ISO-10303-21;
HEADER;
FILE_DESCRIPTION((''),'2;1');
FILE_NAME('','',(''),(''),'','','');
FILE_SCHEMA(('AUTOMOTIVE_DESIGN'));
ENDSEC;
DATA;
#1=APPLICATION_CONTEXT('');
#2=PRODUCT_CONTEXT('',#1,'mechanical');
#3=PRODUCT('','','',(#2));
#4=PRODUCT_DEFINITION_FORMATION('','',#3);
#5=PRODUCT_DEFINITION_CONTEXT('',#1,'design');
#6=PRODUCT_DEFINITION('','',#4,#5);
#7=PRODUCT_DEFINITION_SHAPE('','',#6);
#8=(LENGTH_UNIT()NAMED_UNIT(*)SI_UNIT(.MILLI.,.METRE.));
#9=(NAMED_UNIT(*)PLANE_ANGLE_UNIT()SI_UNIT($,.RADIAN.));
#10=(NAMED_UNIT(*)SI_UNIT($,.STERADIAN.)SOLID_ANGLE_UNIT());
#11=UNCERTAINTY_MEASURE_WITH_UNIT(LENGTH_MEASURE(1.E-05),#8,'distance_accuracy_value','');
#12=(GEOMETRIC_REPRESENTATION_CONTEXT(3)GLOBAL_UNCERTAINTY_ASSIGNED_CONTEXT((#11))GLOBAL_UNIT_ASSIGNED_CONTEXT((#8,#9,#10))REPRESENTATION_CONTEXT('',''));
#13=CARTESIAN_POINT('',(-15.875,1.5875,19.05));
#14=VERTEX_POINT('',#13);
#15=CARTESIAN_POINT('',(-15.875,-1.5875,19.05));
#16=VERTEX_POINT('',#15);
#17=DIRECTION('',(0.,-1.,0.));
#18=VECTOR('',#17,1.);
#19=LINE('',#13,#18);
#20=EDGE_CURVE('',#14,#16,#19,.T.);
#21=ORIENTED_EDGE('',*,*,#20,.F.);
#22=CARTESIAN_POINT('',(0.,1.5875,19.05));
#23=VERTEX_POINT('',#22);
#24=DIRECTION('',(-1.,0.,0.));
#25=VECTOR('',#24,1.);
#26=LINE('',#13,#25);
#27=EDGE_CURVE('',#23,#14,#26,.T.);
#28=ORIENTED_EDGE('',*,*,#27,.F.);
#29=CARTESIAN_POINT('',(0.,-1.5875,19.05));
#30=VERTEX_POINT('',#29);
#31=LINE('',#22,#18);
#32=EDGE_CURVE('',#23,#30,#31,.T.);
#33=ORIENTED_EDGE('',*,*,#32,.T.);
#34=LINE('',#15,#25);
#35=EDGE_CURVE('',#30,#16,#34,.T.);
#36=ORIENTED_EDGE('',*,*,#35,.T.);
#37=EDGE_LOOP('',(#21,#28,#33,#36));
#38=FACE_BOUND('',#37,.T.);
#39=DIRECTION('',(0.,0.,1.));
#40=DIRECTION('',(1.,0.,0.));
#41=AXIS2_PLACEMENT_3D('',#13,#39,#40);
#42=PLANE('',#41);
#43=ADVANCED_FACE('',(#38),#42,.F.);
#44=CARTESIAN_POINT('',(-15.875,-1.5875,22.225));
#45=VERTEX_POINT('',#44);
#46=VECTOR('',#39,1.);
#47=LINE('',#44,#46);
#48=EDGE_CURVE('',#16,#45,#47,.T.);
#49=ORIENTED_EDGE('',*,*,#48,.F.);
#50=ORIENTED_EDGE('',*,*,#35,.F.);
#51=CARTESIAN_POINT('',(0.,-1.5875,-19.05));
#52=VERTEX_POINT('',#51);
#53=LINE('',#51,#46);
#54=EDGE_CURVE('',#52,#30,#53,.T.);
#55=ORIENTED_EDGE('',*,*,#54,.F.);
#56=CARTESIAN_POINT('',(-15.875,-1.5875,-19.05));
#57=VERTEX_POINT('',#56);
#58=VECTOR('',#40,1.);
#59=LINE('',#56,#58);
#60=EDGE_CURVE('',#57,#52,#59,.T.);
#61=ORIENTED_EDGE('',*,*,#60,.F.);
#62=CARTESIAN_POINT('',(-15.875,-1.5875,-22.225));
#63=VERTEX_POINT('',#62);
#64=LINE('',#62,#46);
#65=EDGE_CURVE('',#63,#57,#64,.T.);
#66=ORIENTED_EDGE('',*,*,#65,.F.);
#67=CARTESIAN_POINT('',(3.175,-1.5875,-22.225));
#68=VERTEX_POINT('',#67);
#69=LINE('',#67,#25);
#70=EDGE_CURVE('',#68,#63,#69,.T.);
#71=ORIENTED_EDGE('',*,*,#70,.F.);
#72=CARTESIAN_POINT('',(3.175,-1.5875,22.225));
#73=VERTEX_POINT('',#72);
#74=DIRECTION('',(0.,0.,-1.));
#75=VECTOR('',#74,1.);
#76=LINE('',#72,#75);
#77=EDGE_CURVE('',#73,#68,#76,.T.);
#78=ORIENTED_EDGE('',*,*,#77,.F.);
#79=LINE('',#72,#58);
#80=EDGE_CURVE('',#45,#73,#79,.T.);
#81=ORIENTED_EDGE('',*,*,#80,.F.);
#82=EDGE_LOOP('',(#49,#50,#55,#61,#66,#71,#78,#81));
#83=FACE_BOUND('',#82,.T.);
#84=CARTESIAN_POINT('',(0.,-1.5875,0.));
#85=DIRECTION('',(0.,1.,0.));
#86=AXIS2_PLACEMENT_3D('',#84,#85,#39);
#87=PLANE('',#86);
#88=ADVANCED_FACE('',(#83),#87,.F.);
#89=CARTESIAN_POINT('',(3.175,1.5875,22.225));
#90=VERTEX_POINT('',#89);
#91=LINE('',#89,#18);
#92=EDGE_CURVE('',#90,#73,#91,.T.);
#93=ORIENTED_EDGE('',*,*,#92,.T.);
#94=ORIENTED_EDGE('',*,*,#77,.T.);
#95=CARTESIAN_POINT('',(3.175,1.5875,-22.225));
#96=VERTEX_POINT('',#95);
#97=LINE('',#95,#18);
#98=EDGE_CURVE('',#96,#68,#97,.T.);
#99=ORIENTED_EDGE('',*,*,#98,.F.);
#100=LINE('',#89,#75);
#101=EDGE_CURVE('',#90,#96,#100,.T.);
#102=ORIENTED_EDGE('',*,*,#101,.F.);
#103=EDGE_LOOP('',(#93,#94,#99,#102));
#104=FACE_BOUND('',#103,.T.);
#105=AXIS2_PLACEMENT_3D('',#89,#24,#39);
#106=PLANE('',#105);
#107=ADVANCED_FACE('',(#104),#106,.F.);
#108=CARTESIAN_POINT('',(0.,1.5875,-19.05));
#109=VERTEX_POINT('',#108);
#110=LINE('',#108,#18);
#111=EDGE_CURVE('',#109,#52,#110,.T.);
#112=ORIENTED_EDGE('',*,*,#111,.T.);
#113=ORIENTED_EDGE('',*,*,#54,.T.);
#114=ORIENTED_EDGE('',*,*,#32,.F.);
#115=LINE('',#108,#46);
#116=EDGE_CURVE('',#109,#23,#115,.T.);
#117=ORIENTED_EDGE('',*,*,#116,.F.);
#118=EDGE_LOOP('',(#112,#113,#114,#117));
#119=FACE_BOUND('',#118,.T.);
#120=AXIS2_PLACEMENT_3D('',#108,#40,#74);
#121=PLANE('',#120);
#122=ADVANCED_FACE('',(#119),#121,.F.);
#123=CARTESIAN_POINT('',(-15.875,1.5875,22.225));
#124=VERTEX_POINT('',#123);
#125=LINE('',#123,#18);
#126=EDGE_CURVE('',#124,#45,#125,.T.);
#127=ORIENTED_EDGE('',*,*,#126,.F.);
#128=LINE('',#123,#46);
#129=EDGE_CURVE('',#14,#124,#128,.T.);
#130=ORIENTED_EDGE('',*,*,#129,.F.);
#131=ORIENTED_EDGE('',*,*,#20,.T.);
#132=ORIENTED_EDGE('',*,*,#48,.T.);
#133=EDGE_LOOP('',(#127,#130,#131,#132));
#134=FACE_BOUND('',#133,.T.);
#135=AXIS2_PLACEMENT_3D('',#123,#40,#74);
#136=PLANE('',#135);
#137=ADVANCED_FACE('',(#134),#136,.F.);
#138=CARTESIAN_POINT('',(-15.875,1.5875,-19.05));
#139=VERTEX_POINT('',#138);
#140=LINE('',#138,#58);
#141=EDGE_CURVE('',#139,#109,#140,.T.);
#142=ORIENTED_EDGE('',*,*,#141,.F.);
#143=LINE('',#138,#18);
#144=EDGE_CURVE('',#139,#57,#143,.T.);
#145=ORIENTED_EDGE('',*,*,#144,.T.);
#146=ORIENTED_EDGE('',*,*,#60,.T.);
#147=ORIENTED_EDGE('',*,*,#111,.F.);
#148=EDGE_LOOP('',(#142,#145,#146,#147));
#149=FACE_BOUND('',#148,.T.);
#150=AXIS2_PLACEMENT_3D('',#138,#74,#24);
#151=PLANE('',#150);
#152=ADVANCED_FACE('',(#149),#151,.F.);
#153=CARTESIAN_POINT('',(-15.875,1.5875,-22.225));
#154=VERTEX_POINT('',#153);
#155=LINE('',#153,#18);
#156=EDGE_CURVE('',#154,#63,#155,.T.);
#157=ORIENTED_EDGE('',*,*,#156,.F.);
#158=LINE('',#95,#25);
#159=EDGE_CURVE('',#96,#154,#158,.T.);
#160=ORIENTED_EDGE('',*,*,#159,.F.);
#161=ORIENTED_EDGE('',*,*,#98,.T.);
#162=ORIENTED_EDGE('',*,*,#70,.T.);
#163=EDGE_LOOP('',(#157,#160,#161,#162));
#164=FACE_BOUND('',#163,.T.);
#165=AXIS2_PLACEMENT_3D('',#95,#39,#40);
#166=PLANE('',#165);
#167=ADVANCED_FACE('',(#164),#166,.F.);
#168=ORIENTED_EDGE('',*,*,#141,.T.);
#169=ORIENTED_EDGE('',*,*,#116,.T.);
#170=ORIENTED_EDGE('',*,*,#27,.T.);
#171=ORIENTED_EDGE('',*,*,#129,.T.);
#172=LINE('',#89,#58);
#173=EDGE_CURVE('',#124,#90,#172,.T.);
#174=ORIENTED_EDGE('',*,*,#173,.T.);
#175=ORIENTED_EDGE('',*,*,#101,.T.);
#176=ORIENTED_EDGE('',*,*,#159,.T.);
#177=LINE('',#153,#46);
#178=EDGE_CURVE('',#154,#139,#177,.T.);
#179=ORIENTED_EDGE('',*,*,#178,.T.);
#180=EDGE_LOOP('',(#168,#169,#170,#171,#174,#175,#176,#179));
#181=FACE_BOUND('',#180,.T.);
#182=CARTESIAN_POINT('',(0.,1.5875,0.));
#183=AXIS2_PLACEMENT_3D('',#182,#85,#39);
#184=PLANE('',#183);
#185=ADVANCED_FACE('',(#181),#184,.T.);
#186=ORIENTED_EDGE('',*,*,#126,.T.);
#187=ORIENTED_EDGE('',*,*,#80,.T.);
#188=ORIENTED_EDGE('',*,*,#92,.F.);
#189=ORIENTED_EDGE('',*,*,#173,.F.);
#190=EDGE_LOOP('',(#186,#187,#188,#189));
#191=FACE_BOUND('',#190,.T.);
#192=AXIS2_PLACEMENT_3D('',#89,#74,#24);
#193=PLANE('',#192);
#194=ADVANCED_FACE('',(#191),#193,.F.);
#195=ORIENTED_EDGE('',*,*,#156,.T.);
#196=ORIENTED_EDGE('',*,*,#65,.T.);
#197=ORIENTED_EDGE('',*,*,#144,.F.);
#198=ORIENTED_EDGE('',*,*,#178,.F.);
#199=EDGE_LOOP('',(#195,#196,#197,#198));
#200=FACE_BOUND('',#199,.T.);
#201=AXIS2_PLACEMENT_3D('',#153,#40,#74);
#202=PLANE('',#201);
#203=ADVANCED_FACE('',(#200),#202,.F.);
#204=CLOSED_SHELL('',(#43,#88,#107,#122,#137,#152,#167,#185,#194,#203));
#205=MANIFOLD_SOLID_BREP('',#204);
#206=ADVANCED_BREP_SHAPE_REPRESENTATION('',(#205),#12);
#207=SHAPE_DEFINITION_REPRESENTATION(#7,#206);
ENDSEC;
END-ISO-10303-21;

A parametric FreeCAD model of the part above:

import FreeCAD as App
import Part
import Sketcher
from FreeCAD import Vector
Q = App.Units.Quantity

doc = App.newDocument("Part")
body = doc.addObject("PartDesign::Body", "Body")

sketch1 = body.newObject("Sketcher::SketchObject", "Sketch")
sketch1.AttachmentSupport = (doc.getObject("XZ_Plane"), [""])
sketch1.MapMode = "FlatFace"
sketch1.addGeometry([
    Part.LineSegment(Vector(3.2, 22.2, 0), Vector(3.2, -22.2, 0)),
    Part.LineSegment(Vector(3.2, -22.2, 0), Vector(-15.9, -22.2, 0)),
    Part.LineSegment(Vector(-15.9, -22.2, 0), Vector(-15.9, -19.1, 0)),
    Part.LineSegment(Vector(-15.9, -19.1, 0), Vector(0, -19.1, 0)),
    Part.LineSegment(Vector(0, -19.1, 0), Vector(0, 19.1, 0)),
    Part.LineSegment(Vector(0, 19.1, 0), Vector(-15.9, 19.1, 0)),
    Part.LineSegment(Vector(-15.9, 19.1, 0), Vector(-15.9, 22.2, 0)),
    Part.LineSegment(Vector(-15.9, 22.2, 0), Vector(3.2, 22.2, 0)),
], False)
sketch1.addConstraint([
    Sketcher.Constraint("Coincident", 0, 2, 1, 1),
    Sketcher.Constraint("Coincident", 1, 2, 2, 1),
    Sketcher.Constraint("Coincident", 2, 2, 3, 1),
    Sketcher.Constraint("Coincident", 3, 2, 4, 1),
    Sketcher.Constraint("Coincident", 4, 2, 5, 1),
    Sketcher.Constraint("Coincident", 5, 2, 6, 1),
    Sketcher.Constraint("Coincident", 6, 2, 7, 1),
    Sketcher.Constraint("Coincident", 7, 2, 0, 1),
    Sketcher.Constraint("Vertical", 0),
    Sketcher.Constraint("Horizontal", 1),
    Sketcher.Constraint("Vertical", 2),
    Sketcher.Constraint("Horizontal", 3),
    Sketcher.Constraint("Vertical", 4),
    Sketcher.Constraint("Horizontal", 5),
    Sketcher.Constraint("Vertical", 6),
    Sketcher.Constraint("Horizontal", 7),
    Sketcher.Constraint("Symmetric", 3, 2, 4, 2, -1, 1),
    Sketcher.Constraint("Symmetric", 1, 2, 6, 2, -1),
    Sketcher.Constraint("DistanceY", 4, 1, 4, 2, Q("1.5 in")),
    Sketcher.Constraint("DistanceX", 1, 2, 1, 1, Q("0.75 in")),
    Sketcher.Constraint("DistanceY", 0, 2, 0, 1, Q("1.75 in")),
    Sketcher.Constraint("DistanceX", 3, 1, 3, 2, Q("0.625 in")),
])
pad1 = body.newObject("PartDesign::Pad", "Pad")
pad1.Profile = sketch1
pad1.Length = Q("0.125 in")
pad1.Midplane = True

doc.recompute()
